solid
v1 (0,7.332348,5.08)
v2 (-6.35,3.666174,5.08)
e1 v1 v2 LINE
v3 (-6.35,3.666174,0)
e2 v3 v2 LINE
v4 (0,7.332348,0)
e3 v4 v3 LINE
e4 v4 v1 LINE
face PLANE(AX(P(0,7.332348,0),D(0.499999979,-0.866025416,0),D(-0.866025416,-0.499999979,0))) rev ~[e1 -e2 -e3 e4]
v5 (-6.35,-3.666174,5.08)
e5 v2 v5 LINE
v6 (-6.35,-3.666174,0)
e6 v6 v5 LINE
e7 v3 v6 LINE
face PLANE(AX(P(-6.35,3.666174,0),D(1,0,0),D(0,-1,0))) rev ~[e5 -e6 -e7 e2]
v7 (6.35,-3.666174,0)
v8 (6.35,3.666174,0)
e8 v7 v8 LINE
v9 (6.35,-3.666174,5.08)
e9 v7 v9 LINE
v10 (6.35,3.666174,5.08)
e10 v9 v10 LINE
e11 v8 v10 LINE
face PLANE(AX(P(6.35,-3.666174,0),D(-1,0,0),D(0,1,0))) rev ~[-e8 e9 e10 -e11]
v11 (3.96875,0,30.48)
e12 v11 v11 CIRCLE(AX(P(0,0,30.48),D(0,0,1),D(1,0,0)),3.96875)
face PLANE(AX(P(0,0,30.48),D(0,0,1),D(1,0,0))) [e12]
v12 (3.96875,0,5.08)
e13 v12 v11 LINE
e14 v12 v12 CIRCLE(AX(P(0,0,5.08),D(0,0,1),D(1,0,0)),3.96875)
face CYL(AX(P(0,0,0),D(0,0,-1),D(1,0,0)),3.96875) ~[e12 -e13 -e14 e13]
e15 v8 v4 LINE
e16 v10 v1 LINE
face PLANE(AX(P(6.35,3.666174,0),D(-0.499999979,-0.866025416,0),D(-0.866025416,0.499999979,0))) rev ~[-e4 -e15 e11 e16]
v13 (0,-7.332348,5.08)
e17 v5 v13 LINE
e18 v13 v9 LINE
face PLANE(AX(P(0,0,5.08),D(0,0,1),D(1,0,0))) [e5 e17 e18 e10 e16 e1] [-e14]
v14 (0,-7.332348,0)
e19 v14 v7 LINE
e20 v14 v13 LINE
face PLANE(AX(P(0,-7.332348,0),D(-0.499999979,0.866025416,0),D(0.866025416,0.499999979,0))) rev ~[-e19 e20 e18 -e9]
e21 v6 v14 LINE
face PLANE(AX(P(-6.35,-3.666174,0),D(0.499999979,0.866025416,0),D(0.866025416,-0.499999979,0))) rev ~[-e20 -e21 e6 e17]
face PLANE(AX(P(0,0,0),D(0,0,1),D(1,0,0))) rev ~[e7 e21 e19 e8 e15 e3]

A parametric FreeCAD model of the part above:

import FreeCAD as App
import Part
import Sketcher
Q = App.Units.Quantity


def add_polygon(sketch, points):
    """Adds a closed chain of lines whose ends are joined by coincident constraints."""
    first, n = sketch.GeometryCount, len(points)
    for a, b in zip(points, points[1:] + points[:1]):
        sketch.addGeometry(Part.LineSegment(App.Vector(*a, 0), App.Vector(*b, 0)), False)
    for i in range(n):
        sketch.addConstraint(Sketcher.Constraint("Coincident", first + i, 2, first + (i + 1) % n, 1))

doc = App.newDocument("Part")
params = doc.addObject("Spreadsheet::Sheet", "Params")
for row, (alias, value) in enumerate([
    ("sketch1_diameter", "0.3125 in"),
    ("pad1_length", "0.2 in"),
    ("sketch2_diameter", "0.3125 in"),
    ("pad2_length", "1.2 in"),
], start=1):
    params.set(f"A{row}", alias)
    params.set(f"B{row}", "=" + value)
    params.setAlias(f"B{row}", alias)

body = doc.addObject("PartDesign::Body", "Body")

# Sketch on XY plane
sketch1 = body.newObject("Sketcher::SketchObject", "Sketch")
sketch1.AttachmentSupport = (doc.getObject("XY_Plane"), [""])
sketch1.MapMode = "FlatFace"
add_polygon(sketch1, [(6.3, -3.7), (6.3, 3.7), (0, 7.3), (-6.3, 3.7), (-6.3, -3.7), (0, -7.3)])  # lines 0-5
sketch1.addGeometry(Part.Circle(App.Vector(0, 0, 0), App.Vector(0, 0, 1), 4), False)  # 6
sketch1.addConstraint(Sketcher.Constraint("Vertical", 0))
sketch1.addConstraint(Sketcher.Constraint("Vertical", 3))
sketch1.addConstraint(Sketcher.Constraint("Coincident", 6, 3, -1, 1))
sketch1.addConstraint(Sketcher.Constraint("Symmetric", 0, 2, 3, 2, -1, 1))
sketch1.addConstraint(Sketcher.Constraint("Symmetric", 1, 2, 4, 2, -1, 1))
sketch1.addConstraint(Sketcher.Constraint("PointOnObject", 1, 2, -2))
sketch1.addConstraint(Sketcher.Constraint("Parallel", 2, 5))
sketch1.addConstraint(Sketcher.Constraint("Horizontal", 0, 2, 2, 2))
sketch1.addConstraint(Sketcher.Constraint("Diameter", 6, Q("0.3125 in")))
sketch1.addConstraint(Sketcher.Constraint("Angle", 1, Q("150.000001 deg")))
sketch1.addConstraint(Sketcher.Constraint("DistanceX", 2, 2, 0, 2, Q("0.5 in")))
sketch1.addConstraint(Sketcher.Constraint("DistanceY", 0, 1, 0, 2, Q("7.332348 mm")))
sketch1.setExpression("Constraints[14]", "Params.sketch1_diameter")
pad1 = body.newObject("PartDesign::Pad", "Pad")
pad1.Profile = sketch1
pad1.setExpression("Length", "Params.pad1_length")

# Sketch on XY plane
sketch2 = body.newObject("Sketcher::SketchObject", "Sketch001")
sketch2.AttachmentSupport = (doc.getObject("XY_Plane"), [""])
sketch2.MapMode = "FlatFace"
sketch2.addGeometry(Part.Circle(App.Vector(0, 0, 0), App.Vector(0, 0, 1), 4), False)
sketch2.addConstraint(Sketcher.Constraint("Coincident", 0, 3, -1, 1))
sketch2.addConstraint(Sketcher.Constraint("Diameter", 0, Q("0.3125 in")))
sketch2.setExpression("Constraints[1]", "Params.sketch2_diameter")
pad2 = body.newObject("PartDesign::Pad", "Pad001")
pad2.Profile = sketch2
pad2.setExpression("Length", "Params.pad2_length")

doc.recompute()
